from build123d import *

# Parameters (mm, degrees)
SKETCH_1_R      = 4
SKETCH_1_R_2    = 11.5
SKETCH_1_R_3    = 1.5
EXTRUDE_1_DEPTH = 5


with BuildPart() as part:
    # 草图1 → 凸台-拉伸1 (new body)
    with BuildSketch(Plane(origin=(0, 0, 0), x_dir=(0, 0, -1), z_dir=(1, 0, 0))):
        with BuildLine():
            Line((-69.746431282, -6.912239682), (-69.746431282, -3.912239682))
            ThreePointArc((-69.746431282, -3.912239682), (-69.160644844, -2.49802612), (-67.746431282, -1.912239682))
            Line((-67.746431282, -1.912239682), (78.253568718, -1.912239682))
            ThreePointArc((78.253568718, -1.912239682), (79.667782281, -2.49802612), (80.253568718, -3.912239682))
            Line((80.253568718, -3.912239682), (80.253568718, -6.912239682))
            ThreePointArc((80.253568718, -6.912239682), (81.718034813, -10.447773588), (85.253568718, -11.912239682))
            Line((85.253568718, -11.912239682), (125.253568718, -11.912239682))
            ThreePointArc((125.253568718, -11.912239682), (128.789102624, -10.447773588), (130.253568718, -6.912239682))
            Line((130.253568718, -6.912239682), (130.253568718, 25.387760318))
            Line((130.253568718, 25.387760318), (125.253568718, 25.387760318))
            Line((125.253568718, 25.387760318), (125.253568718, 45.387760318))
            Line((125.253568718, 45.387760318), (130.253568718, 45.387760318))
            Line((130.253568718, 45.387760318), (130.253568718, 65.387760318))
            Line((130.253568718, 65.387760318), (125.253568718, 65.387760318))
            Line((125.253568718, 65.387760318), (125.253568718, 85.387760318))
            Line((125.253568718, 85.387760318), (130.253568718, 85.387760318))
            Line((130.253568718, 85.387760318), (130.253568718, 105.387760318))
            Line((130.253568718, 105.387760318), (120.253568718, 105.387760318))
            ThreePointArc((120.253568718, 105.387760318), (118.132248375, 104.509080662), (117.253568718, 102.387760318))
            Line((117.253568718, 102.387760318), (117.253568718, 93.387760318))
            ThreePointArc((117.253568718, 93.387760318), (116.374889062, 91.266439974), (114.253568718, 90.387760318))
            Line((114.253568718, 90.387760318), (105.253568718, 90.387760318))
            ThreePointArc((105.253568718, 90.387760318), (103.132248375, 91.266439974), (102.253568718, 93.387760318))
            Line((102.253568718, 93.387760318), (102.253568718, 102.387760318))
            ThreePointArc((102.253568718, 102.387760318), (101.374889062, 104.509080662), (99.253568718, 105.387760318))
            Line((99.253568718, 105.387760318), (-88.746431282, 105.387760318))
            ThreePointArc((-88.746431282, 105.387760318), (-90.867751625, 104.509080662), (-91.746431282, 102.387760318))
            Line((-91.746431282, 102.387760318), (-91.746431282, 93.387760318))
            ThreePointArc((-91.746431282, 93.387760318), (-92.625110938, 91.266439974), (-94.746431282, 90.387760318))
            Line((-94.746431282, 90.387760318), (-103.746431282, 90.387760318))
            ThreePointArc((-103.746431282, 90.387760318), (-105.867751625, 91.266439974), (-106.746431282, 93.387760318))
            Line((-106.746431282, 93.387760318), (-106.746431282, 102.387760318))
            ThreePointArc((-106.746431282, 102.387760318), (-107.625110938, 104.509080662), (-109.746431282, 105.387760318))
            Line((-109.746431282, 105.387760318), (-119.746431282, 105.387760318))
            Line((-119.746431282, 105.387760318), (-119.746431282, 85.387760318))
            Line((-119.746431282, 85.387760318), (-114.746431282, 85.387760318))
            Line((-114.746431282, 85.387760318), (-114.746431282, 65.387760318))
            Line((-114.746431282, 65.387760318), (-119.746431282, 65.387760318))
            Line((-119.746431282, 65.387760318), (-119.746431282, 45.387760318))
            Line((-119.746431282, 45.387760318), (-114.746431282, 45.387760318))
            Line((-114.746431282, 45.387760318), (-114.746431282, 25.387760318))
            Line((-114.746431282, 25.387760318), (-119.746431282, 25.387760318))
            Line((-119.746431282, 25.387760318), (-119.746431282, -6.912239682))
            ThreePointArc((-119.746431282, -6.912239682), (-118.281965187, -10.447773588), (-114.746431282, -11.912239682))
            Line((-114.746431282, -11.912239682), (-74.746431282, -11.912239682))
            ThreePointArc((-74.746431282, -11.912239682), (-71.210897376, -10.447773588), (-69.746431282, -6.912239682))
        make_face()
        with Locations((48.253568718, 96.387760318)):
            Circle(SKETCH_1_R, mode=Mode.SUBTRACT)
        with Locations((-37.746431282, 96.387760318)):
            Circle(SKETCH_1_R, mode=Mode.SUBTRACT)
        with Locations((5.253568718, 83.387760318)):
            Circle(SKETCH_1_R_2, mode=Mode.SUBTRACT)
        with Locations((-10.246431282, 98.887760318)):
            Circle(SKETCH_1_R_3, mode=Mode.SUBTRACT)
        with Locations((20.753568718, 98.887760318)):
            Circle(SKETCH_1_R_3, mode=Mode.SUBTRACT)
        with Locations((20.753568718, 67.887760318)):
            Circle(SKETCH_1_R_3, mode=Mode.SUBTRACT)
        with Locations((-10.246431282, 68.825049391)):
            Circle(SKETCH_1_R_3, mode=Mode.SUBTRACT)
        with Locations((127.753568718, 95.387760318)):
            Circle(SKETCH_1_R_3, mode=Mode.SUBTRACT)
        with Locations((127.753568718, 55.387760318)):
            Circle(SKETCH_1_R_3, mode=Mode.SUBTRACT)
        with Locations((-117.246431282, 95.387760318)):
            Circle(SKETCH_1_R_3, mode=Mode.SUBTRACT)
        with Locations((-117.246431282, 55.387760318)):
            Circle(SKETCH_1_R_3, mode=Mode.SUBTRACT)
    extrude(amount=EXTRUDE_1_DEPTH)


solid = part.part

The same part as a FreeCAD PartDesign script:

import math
import FreeCAD as App
import Part
import Sketcher

doc = App.newDocument("Part")
body = doc.addObject("PartDesign::Body", "Body")

# Sketch on YZ plane
sketch1 = body.newObject("Sketcher::SketchObject", "Sketch")
sketch1.AttachmentSupport = (doc.getObject("YZ_Plane"), [""])
sketch1.MapMode = "FlatFace"
sketch1.addGeometry([
    Part.LineSegment(App.Vector(-6.9, 69.7, 0), App.Vector(-3.9, 69.7, 0)),  # 0
    Part.ArcOfCircle(Part.Circle(App.Vector(-3.9, 67.7, 0), App.Vector(0, 0, 1), 2), math.radians(0), math.radians(90)),  # 1
    Part.LineSegment(App.Vector(-1.9, 67.7, 0), App.Vector(-1.9, -78.3, 0)),  # 2
    Part.ArcOfCircle(Part.Circle(App.Vector(-3.9, -78.3, 0), App.Vector(0, 0, 1), 2), math.radians(-90), math.radians(0)),  # 3
    Part.LineSegment(App.Vector(-3.9, -80.3, 0), App.Vector(-6.9, -80.3, 0)),  # 4
    Part.ArcOfCircle(Part.Circle(App.Vector(-6.9, -85.3, 0), App.Vector(0, 0, 1), 5), math.radians(90), math.radians(180)),  # 5
    Part.LineSegment(App.Vector(-11.9, -85.3, 0), App.Vector(-11.9, -125.3, 0)),  # 6
    Part.ArcOfCircle(Part.Circle(App.Vector(-6.9, -125.3, 0), App.Vector(0, 0, 1), 5), math.radians(180), math.radians(270)),  # 7
    Part.LineSegment(App.Vector(-6.9, -130.3, 0), App.Vector(25.4, -130.3, 0)),  # 8
    Part.LineSegment(App.Vector(25.4, -130.3, 0), App.Vector(25.4, -125.3, 0)),  # 9
    Part.LineSegment(App.Vector(25.4, -125.3, 0), App.Vector(45.4, -125.3, 0)),  # 10
    Part.LineSegment(App.Vector(45.4, -125.3, 0), App.Vector(45.4, -130.3, 0)),  # 11
    Part.LineSegment(App.Vector(45.4, -130.3, 0), App.Vector(65.4, -130.3, 0)),  # 12
    Part.LineSegment(App.Vector(65.4, -130.3, 0), App.Vector(65.4, -125.3, 0)),  # 13
    Part.LineSegment(App.Vector(65.4, -125.3, 0), App.Vector(85.4, -125.3, 0)),  # 14
    Part.LineSegment(App.Vector(85.4, -125.3, 0), App.Vector(85.4, -130.3, 0)),  # 15
    Part.LineSegment(App.Vector(85.4, -130.3, 0), App.Vector(105.4, -130.3, 0)),  # 16
    Part.LineSegment(App.Vector(105.4, -130.3, 0), App.Vector(105.4, -120.3, 0)),  # 17
    Part.ArcOfCircle(Part.Circle(App.Vector(102.4, -120.3, 0), App.Vector(0, 0, 1), 3), math.radians(0), math.radians(90)),  # 18
    Part.LineSegment(App.Vector(102.4, -117.3, 0), App.Vector(93.4, -117.3, 0)),  # 19
    Part.ArcOfCircle(Part.Circle(App.Vector(93.4, -114.3, 0), App.Vector(0, 0, 1), 3), math.radians(180), math.radians(270)),  # 20
    Part.LineSegment(App.Vector(90.4, -114.3, 0), App.Vector(90.4, -105.3, 0)),  # 21
    Part.ArcOfCircle(Part.Circle(App.Vector(93.4, -105.3, 0), App.Vector(0, 0, 1), 3), math.radians(90), math.radians(180)),  # 22
    Part.LineSegment(App.Vector(93.4, -102.3, 0), App.Vector(102.4, -102.3, 0)),  # 23
    Part.ArcOfCircle(Part.Circle(App.Vector(102.4, -99.3, 0), App.Vector(0, 0, 1), 3), math.radians(-90), math.radians(0)),  # 24
    Part.LineSegment(App.Vector(105.4, -99.3, 0), App.Vector(105.4, 88.7, 0)),  # 25
    Part.ArcOfCircle(Part.Circle(App.Vector(102.4, 88.7, 0), App.Vector(0, 0, 1), 3), math.radians(0), math.radians(90)),  # 26
    Part.LineSegment(App.Vector(102.4, 91.7, 0), App.Vector(93.4, 91.7, 0)),  # 27
    Part.ArcOfCircle(Part.Circle(App.Vector(93.4, 94.7, 0), App.Vector(0, 0, 1), 3), math.radians(180), math.radians(270)),  # 28
    Part.LineSegment(App.Vector(90.4, 94.7, 0), App.Vector(90.4, 103.7, 0)),  # 29
    Part.ArcOfCircle(Part.Circle(App.Vector(93.4, 103.7, 0), App.Vector(0, 0, 1), 3), math.radians(90), math.radians(180)),  # 30
    Part.LineSegment(App.Vector(93.4, 106.7, 0), App.Vector(102.4, 106.7, 0)),  # 31
    Part.ArcOfCircle(Part.Circle(App.Vector(102.4, 109.7, 0), App.Vector(0, 0, 1), 3), math.radians(-90), math.radians(0)),  # 32
    Part.LineSegment(App.Vector(105.4, 109.7, 0), App.Vector(105.4, 119.7, 0)),  # 33
    Part.LineSegment(App.Vector(105.4, 119.7, 0), App.Vector(85.4, 119.7, 0)),  # 34
    Part.LineSegment(App.Vector(85.4, 119.7, 0), App.Vector(85.4, 114.7, 0)),  # 35
    Part.LineSegment(App.Vector(85.4, 114.7, 0), App.Vector(65.4, 114.7, 0)),  # 36
    Part.LineSegment(App.Vector(65.4, 114.7, 0), App.Vector(65.4, 119.7, 0)),  # 37
    Part.LineSegment(App.Vector(65.4, 119.7, 0), App.Vector(45.4, 119.7, 0)),  # 38
    Part.LineSegment(App.Vector(45.4, 119.7, 0), App.Vector(45.4, 114.7, 0)),  # 39
    Part.LineSegment(App.Vector(45.4, 114.7, 0), App.Vector(25.4, 114.7, 0)),  # 40
    Part.LineSegment(App.Vector(25.4, 114.7, 0), App.Vector(25.4, 119.7, 0)),  # 41
    Part.LineSegment(App.Vector(25.4, 119.7, 0), App.Vector(-6.9, 119.7, 0)),  # 42
    Part.ArcOfCircle(Part.Circle(App.Vector(-6.9, 114.7, 0), App.Vector(0, 0, 1), 5), math.radians(90), math.radians(180)),  # 43
    Part.LineSegment(App.Vector(-11.9, 114.7, 0), App.Vector(-11.9, 74.7, 0)),  # 44
    Part.ArcOfCircle(Part.Circle(App.Vector(-6.9, 74.7, 0), App.Vector(0, 0, 1), 5), math.radians(180), math.radians(270)),  # 45
    Part.Circle(App.Vector(55.4, 117.2, 0), App.Vector(0, 0, 1), 1.5),  # 46
    Part.Circle(App.Vector(68.8, 10.2, 0), App.Vector(0, 0, 1), 1.5),  # 47
    Part.Circle(App.Vector(55.4, -127.8, 0), App.Vector(0, 0, 1), 1.5),  # 48
    Part.Circle(App.Vector(67.9, -20.8, 0), App.Vector(0, 0, 1), 1.5),  # 49
    Part.Circle(App.Vector(95.4, 117.2, 0), App.Vector(0, 0, 1), 1.5),  # 50
    Part.Circle(App.Vector(96.4, 37.7, 0), App.Vector(0, 0, 1), 4),  # 51
    Part.Circle(App.Vector(98.9, 10.2, 0), App.Vector(0, 0, 1), 1.5),  # 52
    Part.Circle(App.Vector(83.4, -5.3, 0), App.Vector(0, 0, 1), 11.5),  # 53
    Part.Circle(App.Vector(98.9, -20.8, 0), App.Vector(0, 0, 1), 1.5),  # 54
    Part.Circle(App.Vector(96.4, -48.3, 0), App.Vector(0, 0, 1), 4),  # 55
    Part.Circle(App.Vector(95.4, -127.8, 0), App.Vector(0, 0, 1), 1.5),  # 56
], False)
sketch1.addConstraint([
    Sketcher.Constraint("Tangent", 0, 2, 1, 2),
    Sketcher.Constraint("Tangent", 1, 1, 2, 1),
    Sketcher.Constraint("Tangent", 2, 2, 3, 2),
    Sketcher.Constraint("Tangent", 3, 1, 4, 1),
    Sketcher.Constraint("Tangent", 4, 2, 5, 1),
    Sketcher.Constraint("Tangent", 5, 2, 6, 1),
    Sketcher.Constraint("Tangent", 6, 2, 7, 1),
    Sketcher.Constraint("Tangent", 7, 2, 8, 1),
    Sketcher.Constraint("Coincident", 8, 2, 9, 1),
    Sketcher.Constraint("Coincident", 9, 2, 10, 1),
    Sketcher.Constraint("Coincident", 10, 2, 11, 1),
    Sketcher.Constraint("Coincident", 11, 2, 12, 1),
    Sketcher.Constraint("Coincident", 12, 2, 13, 1),
    Sketcher.Constraint("Coincident", 13, 2, 14, 1),
    Sketcher.Constraint("Coincident", 14, 2, 15, 1),
    Sketcher.Constraint("Coincident", 15, 2, 16, 1),
    Sketcher.Constraint("Coincident", 16, 2, 17, 1),
    Sketcher.Constraint("Tangent", 17, 2, 18, 1),
    Sketcher.Constraint("Tangent", 18, 2, 19, 1),
    Sketcher.Constraint("Tangent", 19, 2, 20, 2),
    Sketcher.Constraint("Tangent", 20, 1, 21, 1),
    Sketcher.Constraint("Tangent", 21, 2, 22, 2),
    Sketcher.Constraint("Tangent", 22, 1, 23, 1),
    Sketcher.Constraint("Tangent", 23, 2, 24, 1),
    Sketcher.Constraint("Tangent", 24, 2, 25, 1),
    Sketcher.Constraint("Tangent", 25, 2, 26, 1),
    Sketcher.Constraint("Tangent", 26, 2, 27, 1),
    Sketcher.Constraint("Tangent", 27, 2, 28, 2),
    Sketcher.Constraint("Tangent", 28, 1, 29, 1),
    Sketcher.Constraint("Tangent", 29, 2, 30, 2),
    Sketcher.Constraint("Tangent", 30, 1, 31, 1),
    Sketcher.Constraint("Tangent", 31, 2, 32, 1),
    Sketcher.Constraint("Tangent", 32, 2, 33, 1),
    Sketcher.Constraint("Coincident", 33, 2, 34, 1),
    Sketcher.Constraint("Coincident", 34, 2, 35, 1),
    Sketcher.Constraint("Coincident", 35, 2, 36, 1),
    Sketcher.Constraint("Coincident", 36, 2, 37, 1),
    Sketcher.Constraint("Coincident", 37, 2, 38, 1),
    Sketcher.Constraint("Coincident", 38, 2, 39, 1),
    Sketcher.Constraint("Coincident", 39, 2, 40, 1),
    Sketcher.Constraint("Coincident", 40, 2, 41, 1),
    Sketcher.Constraint("Coincident", 41, 2, 42, 1),
    Sketcher.Constraint("Tangent", 42, 2, 43, 1),
    Sketcher.Constraint("Tangent", 43, 2, 44, 1),
    Sketcher.Constraint("Tangent", 44, 2, 45, 1),
    Sketcher.Constraint("Tangent", 45, 2, 0, 1),
    Sketcher.Constraint("Horizontal", 0),
    Sketcher.Constraint("Vertical", 2),
    Sketcher.Constraint("Horizontal", 4),
    Sketcher.Constraint("Vertical", 6),
    Sketcher.Constraint("Horizontal", 8),
    Sketcher.Constraint("Vertical", 9),
    Sketcher.Constraint("Horizontal", 10),
    Sketcher.Constraint("Vertical", 11),
    Sketcher.Constraint("Horizontal", 12),
    Sketcher.Constraint("Vertical", 13),
    Sketcher.Constraint("Horizontal", 14),
    Sketcher.Constraint("Vertical", 15),
    Sketcher.Constraint("Horizontal", 16),
    Sketcher.Constraint("Vertical", 17),
    Sketcher.Constraint("Horizontal", 19),
    Sketcher.Constraint("Vertical", 21),
    Sketcher.Constraint("Horizontal", 23),
    Sketcher.Constraint("Vertical", 25),
    Sketcher.Constraint("Horizontal", 27),
    Sketcher.Constraint("Vertical", 29),
    Sketcher.Constraint("Horizontal", 31),
    Sketcher.Constraint("Vertical", 33),
    Sketcher.Constraint("Horizontal", 34),
    Sketcher.Constraint("Vertical", 35),
    Sketcher.Constraint("Horizontal", 36),
    Sketcher.Constraint("Vertical", 37),
    Sketcher.Constraint("Horizontal", 38),
    Sketcher.Constraint("Vertical", 39),
    Sketcher.Constraint("Horizontal", 40),
    Sketcher.Constraint("Vertical", 41),
    Sketcher.Constraint("Horizontal", 42),
    Sketcher.Constraint("Vertical", 44),
    Sketcher.Constraint("Equal", 1, 3),
    Sketcher.Constraint("Equal", 5, 7),
    Sketcher.Constraint("Equal", 18, 20),
    Sketcher.Constraint("Equal", 20, 22),
    Sketcher.Constraint("Equal", 22, 24),
    Sketcher.Constraint("Equal", 24, 26),
    Sketcher.Constraint("Equal", 26, 28),
    Sketcher.Constraint("Equal", 28, 30),
    Sketcher.Constraint("Equal", 30, 32),
    Sketcher.Constraint("Equal", 7, 43),
    Sketcher.Constraint("Equal", 43, 45),
    Sketcher.Constraint("Equal", 46, 47),
    Sketcher.Constraint("Equal", 47, 48),
    Sketcher.Constraint("Equal", 48, 49),
    Sketcher.Constraint("Equal", 49, 50),
    Sketcher.Constraint("Equal", 50, 52),
    Sketcher.Constraint("Equal", 52, 54),
    Sketcher.Constraint("Equal", 51, 55),
    Sketcher.Constraint("Equal", 54, 56),
    Sketcher.Constraint("Horizontal", 46, 3, 50, 3),
    Sketcher.Constraint("Horizontal", 47, 3, 52, 3),
    Sketcher.Constraint("Horizontal", 49, 3, 54, 3),
    Sketcher.Constraint("Horizontal", 48, 3, 56, 3),
    Sketcher.Constraint("Horizontal", 6, 2, 9, 2),
    Sketcher.Constraint("Horizontal", 8, 2, 11, 2),
    Sketcher.Constraint("Horizontal", 10, 2, 13, 2),
    Sketcher.Constraint("Horizontal", 12, 2, 15, 2),
    Sketcher.Constraint("Horizontal", 43, 3, 35, 2),
    Sketcher.Constraint("Horizontal", 34, 2, 37, 2),
    Sketcher.Constraint("Horizontal", 36, 2, 39, 2),
    Sketcher.Constraint("Horizontal", 38, 2, 41, 2),
    Sketcher.Constraint("Vertical", 18, 3, 24, 3),
    Sketcher.Constraint("Vertical", 22, 3, 28, 3),
    Sketcher.Constraint("Vertical", 26, 3, 32, 3),
    Sketcher.Constraint("Vertical", 7, 3, 43, 3),
    Sketcher.Constraint("Vertical", 46, 3, 48, 3),
    Sketcher.Constraint("Vertical", 52, 3, 54, 3),
    Sketcher.Constraint("Vertical", 51, 3, 55, 3),
    Sketcher.Constraint("Vertical", 50, 3, 56, 3),
    Sketcher.Constraint("Vertical", 15, 2, 34, 2),
    Sketcher.Constraint("Vertical", 13, 2, 36, 2),
    Sketcher.Constraint("Vertical", 11, 2, 38, 2),
    Sketcher.Constraint("Vertical", 9, 2, 40, 2),
    Sketcher.Constraint("Equal", 10, 12),
    Sketcher.Constraint("Equal", 12, 14),
    Sketcher.Constraint("Equal", 14, 16),
    Sketcher.Constraint("Equal", 31, 21),
    Sketcher.Constraint("Equal", 21, 29),
    Sketcher.Constraint("Equal", 17, 33),
    Sketcher.Constraint("Equal", 6, 44),
    Sketcher.Constraint("Diameter", 46, 3.0),
    Sketcher.Constraint("Diameter", 51, 8.0),
    Sketcher.Constraint("Diameter", 53, 23.0),
    Sketcher.Constraint("Radius", 1, 2.0),
    Sketcher.Constraint("Radius", 5, 5.0),
    Sketcher.Constraint("Radius", 18, 3.0),
    Sketcher.Constraint("DistanceX", 0, 1, 0, 2, 3.0),
    Sketcher.Constraint("DistanceX", 10, 1, 10, 2, 20.0),
    Sketcher.Constraint("DistanceX", 19, 2, 19, 1, 9.0),
    Sketcher.Constraint("DistanceY", 2, 2, 2, 1, 146.0),
    Sketcher.Constraint("DistanceY", 6, 2, 6, 1, 40.0),
    Sketcher.Constraint("DistanceY", 17, 1, 17, 2, 10.0),
    Sketcher.Constraint("DistanceX", 8, 1, 8, 2, 32.3),
    Sketcher.Constraint("DistanceX", 1, 3, -1, 1, 3.91224),
    Sketcher.Constraint("DistanceY", -1, 1, 1, 3, 67.746431),
    Sketcher.Constraint("DistanceX", -1, 1, 46, 3, 55.38776),
    Sketcher.Constraint("DistanceY", -1, 1, 46, 3, 117.246431),
    Sketcher.Constraint("DistanceX", -1, 1, 47, 3, 68.825049),
    Sketcher.Constraint("DistanceY", -1, 1, 47, 3, 10.246431),
    Sketcher.Constraint("DistanceY", 48, 3, -1, 1, 127.753569),
    Sketcher.Constraint("DistanceX", -1, 1, 49, 3, 67.88776),
    Sketcher.Constraint("DistanceY", 49, 3, -1, 1, 20.753569),
    Sketcher.Constraint("DistanceX", -1, 1, 50, 3, 95.38776),
    Sketcher.Constraint("DistanceX", -1, 1, 51, 3, 96.38776),
    Sketcher.Constraint("DistanceY", -1, 1, 51, 3, 37.746431),
    Sketcher.Constraint("DistanceX", -1, 1, 52, 3, 98.88776),
    Sketcher.Constraint("DistanceX", -1, 1, 53, 3, 83.38776),
    Sketcher.Constraint("DistanceY", 53, 3, -1, 1, 5.253569),
    Sketcher.Constraint("DistanceY", 55, 3, -1, 1, 48.253569),
])
pad1 = body.newObject("PartDesign::Pad", "Pad")
pad1.Profile = sketch1
pad1.Length = 5

doc.recompute()
